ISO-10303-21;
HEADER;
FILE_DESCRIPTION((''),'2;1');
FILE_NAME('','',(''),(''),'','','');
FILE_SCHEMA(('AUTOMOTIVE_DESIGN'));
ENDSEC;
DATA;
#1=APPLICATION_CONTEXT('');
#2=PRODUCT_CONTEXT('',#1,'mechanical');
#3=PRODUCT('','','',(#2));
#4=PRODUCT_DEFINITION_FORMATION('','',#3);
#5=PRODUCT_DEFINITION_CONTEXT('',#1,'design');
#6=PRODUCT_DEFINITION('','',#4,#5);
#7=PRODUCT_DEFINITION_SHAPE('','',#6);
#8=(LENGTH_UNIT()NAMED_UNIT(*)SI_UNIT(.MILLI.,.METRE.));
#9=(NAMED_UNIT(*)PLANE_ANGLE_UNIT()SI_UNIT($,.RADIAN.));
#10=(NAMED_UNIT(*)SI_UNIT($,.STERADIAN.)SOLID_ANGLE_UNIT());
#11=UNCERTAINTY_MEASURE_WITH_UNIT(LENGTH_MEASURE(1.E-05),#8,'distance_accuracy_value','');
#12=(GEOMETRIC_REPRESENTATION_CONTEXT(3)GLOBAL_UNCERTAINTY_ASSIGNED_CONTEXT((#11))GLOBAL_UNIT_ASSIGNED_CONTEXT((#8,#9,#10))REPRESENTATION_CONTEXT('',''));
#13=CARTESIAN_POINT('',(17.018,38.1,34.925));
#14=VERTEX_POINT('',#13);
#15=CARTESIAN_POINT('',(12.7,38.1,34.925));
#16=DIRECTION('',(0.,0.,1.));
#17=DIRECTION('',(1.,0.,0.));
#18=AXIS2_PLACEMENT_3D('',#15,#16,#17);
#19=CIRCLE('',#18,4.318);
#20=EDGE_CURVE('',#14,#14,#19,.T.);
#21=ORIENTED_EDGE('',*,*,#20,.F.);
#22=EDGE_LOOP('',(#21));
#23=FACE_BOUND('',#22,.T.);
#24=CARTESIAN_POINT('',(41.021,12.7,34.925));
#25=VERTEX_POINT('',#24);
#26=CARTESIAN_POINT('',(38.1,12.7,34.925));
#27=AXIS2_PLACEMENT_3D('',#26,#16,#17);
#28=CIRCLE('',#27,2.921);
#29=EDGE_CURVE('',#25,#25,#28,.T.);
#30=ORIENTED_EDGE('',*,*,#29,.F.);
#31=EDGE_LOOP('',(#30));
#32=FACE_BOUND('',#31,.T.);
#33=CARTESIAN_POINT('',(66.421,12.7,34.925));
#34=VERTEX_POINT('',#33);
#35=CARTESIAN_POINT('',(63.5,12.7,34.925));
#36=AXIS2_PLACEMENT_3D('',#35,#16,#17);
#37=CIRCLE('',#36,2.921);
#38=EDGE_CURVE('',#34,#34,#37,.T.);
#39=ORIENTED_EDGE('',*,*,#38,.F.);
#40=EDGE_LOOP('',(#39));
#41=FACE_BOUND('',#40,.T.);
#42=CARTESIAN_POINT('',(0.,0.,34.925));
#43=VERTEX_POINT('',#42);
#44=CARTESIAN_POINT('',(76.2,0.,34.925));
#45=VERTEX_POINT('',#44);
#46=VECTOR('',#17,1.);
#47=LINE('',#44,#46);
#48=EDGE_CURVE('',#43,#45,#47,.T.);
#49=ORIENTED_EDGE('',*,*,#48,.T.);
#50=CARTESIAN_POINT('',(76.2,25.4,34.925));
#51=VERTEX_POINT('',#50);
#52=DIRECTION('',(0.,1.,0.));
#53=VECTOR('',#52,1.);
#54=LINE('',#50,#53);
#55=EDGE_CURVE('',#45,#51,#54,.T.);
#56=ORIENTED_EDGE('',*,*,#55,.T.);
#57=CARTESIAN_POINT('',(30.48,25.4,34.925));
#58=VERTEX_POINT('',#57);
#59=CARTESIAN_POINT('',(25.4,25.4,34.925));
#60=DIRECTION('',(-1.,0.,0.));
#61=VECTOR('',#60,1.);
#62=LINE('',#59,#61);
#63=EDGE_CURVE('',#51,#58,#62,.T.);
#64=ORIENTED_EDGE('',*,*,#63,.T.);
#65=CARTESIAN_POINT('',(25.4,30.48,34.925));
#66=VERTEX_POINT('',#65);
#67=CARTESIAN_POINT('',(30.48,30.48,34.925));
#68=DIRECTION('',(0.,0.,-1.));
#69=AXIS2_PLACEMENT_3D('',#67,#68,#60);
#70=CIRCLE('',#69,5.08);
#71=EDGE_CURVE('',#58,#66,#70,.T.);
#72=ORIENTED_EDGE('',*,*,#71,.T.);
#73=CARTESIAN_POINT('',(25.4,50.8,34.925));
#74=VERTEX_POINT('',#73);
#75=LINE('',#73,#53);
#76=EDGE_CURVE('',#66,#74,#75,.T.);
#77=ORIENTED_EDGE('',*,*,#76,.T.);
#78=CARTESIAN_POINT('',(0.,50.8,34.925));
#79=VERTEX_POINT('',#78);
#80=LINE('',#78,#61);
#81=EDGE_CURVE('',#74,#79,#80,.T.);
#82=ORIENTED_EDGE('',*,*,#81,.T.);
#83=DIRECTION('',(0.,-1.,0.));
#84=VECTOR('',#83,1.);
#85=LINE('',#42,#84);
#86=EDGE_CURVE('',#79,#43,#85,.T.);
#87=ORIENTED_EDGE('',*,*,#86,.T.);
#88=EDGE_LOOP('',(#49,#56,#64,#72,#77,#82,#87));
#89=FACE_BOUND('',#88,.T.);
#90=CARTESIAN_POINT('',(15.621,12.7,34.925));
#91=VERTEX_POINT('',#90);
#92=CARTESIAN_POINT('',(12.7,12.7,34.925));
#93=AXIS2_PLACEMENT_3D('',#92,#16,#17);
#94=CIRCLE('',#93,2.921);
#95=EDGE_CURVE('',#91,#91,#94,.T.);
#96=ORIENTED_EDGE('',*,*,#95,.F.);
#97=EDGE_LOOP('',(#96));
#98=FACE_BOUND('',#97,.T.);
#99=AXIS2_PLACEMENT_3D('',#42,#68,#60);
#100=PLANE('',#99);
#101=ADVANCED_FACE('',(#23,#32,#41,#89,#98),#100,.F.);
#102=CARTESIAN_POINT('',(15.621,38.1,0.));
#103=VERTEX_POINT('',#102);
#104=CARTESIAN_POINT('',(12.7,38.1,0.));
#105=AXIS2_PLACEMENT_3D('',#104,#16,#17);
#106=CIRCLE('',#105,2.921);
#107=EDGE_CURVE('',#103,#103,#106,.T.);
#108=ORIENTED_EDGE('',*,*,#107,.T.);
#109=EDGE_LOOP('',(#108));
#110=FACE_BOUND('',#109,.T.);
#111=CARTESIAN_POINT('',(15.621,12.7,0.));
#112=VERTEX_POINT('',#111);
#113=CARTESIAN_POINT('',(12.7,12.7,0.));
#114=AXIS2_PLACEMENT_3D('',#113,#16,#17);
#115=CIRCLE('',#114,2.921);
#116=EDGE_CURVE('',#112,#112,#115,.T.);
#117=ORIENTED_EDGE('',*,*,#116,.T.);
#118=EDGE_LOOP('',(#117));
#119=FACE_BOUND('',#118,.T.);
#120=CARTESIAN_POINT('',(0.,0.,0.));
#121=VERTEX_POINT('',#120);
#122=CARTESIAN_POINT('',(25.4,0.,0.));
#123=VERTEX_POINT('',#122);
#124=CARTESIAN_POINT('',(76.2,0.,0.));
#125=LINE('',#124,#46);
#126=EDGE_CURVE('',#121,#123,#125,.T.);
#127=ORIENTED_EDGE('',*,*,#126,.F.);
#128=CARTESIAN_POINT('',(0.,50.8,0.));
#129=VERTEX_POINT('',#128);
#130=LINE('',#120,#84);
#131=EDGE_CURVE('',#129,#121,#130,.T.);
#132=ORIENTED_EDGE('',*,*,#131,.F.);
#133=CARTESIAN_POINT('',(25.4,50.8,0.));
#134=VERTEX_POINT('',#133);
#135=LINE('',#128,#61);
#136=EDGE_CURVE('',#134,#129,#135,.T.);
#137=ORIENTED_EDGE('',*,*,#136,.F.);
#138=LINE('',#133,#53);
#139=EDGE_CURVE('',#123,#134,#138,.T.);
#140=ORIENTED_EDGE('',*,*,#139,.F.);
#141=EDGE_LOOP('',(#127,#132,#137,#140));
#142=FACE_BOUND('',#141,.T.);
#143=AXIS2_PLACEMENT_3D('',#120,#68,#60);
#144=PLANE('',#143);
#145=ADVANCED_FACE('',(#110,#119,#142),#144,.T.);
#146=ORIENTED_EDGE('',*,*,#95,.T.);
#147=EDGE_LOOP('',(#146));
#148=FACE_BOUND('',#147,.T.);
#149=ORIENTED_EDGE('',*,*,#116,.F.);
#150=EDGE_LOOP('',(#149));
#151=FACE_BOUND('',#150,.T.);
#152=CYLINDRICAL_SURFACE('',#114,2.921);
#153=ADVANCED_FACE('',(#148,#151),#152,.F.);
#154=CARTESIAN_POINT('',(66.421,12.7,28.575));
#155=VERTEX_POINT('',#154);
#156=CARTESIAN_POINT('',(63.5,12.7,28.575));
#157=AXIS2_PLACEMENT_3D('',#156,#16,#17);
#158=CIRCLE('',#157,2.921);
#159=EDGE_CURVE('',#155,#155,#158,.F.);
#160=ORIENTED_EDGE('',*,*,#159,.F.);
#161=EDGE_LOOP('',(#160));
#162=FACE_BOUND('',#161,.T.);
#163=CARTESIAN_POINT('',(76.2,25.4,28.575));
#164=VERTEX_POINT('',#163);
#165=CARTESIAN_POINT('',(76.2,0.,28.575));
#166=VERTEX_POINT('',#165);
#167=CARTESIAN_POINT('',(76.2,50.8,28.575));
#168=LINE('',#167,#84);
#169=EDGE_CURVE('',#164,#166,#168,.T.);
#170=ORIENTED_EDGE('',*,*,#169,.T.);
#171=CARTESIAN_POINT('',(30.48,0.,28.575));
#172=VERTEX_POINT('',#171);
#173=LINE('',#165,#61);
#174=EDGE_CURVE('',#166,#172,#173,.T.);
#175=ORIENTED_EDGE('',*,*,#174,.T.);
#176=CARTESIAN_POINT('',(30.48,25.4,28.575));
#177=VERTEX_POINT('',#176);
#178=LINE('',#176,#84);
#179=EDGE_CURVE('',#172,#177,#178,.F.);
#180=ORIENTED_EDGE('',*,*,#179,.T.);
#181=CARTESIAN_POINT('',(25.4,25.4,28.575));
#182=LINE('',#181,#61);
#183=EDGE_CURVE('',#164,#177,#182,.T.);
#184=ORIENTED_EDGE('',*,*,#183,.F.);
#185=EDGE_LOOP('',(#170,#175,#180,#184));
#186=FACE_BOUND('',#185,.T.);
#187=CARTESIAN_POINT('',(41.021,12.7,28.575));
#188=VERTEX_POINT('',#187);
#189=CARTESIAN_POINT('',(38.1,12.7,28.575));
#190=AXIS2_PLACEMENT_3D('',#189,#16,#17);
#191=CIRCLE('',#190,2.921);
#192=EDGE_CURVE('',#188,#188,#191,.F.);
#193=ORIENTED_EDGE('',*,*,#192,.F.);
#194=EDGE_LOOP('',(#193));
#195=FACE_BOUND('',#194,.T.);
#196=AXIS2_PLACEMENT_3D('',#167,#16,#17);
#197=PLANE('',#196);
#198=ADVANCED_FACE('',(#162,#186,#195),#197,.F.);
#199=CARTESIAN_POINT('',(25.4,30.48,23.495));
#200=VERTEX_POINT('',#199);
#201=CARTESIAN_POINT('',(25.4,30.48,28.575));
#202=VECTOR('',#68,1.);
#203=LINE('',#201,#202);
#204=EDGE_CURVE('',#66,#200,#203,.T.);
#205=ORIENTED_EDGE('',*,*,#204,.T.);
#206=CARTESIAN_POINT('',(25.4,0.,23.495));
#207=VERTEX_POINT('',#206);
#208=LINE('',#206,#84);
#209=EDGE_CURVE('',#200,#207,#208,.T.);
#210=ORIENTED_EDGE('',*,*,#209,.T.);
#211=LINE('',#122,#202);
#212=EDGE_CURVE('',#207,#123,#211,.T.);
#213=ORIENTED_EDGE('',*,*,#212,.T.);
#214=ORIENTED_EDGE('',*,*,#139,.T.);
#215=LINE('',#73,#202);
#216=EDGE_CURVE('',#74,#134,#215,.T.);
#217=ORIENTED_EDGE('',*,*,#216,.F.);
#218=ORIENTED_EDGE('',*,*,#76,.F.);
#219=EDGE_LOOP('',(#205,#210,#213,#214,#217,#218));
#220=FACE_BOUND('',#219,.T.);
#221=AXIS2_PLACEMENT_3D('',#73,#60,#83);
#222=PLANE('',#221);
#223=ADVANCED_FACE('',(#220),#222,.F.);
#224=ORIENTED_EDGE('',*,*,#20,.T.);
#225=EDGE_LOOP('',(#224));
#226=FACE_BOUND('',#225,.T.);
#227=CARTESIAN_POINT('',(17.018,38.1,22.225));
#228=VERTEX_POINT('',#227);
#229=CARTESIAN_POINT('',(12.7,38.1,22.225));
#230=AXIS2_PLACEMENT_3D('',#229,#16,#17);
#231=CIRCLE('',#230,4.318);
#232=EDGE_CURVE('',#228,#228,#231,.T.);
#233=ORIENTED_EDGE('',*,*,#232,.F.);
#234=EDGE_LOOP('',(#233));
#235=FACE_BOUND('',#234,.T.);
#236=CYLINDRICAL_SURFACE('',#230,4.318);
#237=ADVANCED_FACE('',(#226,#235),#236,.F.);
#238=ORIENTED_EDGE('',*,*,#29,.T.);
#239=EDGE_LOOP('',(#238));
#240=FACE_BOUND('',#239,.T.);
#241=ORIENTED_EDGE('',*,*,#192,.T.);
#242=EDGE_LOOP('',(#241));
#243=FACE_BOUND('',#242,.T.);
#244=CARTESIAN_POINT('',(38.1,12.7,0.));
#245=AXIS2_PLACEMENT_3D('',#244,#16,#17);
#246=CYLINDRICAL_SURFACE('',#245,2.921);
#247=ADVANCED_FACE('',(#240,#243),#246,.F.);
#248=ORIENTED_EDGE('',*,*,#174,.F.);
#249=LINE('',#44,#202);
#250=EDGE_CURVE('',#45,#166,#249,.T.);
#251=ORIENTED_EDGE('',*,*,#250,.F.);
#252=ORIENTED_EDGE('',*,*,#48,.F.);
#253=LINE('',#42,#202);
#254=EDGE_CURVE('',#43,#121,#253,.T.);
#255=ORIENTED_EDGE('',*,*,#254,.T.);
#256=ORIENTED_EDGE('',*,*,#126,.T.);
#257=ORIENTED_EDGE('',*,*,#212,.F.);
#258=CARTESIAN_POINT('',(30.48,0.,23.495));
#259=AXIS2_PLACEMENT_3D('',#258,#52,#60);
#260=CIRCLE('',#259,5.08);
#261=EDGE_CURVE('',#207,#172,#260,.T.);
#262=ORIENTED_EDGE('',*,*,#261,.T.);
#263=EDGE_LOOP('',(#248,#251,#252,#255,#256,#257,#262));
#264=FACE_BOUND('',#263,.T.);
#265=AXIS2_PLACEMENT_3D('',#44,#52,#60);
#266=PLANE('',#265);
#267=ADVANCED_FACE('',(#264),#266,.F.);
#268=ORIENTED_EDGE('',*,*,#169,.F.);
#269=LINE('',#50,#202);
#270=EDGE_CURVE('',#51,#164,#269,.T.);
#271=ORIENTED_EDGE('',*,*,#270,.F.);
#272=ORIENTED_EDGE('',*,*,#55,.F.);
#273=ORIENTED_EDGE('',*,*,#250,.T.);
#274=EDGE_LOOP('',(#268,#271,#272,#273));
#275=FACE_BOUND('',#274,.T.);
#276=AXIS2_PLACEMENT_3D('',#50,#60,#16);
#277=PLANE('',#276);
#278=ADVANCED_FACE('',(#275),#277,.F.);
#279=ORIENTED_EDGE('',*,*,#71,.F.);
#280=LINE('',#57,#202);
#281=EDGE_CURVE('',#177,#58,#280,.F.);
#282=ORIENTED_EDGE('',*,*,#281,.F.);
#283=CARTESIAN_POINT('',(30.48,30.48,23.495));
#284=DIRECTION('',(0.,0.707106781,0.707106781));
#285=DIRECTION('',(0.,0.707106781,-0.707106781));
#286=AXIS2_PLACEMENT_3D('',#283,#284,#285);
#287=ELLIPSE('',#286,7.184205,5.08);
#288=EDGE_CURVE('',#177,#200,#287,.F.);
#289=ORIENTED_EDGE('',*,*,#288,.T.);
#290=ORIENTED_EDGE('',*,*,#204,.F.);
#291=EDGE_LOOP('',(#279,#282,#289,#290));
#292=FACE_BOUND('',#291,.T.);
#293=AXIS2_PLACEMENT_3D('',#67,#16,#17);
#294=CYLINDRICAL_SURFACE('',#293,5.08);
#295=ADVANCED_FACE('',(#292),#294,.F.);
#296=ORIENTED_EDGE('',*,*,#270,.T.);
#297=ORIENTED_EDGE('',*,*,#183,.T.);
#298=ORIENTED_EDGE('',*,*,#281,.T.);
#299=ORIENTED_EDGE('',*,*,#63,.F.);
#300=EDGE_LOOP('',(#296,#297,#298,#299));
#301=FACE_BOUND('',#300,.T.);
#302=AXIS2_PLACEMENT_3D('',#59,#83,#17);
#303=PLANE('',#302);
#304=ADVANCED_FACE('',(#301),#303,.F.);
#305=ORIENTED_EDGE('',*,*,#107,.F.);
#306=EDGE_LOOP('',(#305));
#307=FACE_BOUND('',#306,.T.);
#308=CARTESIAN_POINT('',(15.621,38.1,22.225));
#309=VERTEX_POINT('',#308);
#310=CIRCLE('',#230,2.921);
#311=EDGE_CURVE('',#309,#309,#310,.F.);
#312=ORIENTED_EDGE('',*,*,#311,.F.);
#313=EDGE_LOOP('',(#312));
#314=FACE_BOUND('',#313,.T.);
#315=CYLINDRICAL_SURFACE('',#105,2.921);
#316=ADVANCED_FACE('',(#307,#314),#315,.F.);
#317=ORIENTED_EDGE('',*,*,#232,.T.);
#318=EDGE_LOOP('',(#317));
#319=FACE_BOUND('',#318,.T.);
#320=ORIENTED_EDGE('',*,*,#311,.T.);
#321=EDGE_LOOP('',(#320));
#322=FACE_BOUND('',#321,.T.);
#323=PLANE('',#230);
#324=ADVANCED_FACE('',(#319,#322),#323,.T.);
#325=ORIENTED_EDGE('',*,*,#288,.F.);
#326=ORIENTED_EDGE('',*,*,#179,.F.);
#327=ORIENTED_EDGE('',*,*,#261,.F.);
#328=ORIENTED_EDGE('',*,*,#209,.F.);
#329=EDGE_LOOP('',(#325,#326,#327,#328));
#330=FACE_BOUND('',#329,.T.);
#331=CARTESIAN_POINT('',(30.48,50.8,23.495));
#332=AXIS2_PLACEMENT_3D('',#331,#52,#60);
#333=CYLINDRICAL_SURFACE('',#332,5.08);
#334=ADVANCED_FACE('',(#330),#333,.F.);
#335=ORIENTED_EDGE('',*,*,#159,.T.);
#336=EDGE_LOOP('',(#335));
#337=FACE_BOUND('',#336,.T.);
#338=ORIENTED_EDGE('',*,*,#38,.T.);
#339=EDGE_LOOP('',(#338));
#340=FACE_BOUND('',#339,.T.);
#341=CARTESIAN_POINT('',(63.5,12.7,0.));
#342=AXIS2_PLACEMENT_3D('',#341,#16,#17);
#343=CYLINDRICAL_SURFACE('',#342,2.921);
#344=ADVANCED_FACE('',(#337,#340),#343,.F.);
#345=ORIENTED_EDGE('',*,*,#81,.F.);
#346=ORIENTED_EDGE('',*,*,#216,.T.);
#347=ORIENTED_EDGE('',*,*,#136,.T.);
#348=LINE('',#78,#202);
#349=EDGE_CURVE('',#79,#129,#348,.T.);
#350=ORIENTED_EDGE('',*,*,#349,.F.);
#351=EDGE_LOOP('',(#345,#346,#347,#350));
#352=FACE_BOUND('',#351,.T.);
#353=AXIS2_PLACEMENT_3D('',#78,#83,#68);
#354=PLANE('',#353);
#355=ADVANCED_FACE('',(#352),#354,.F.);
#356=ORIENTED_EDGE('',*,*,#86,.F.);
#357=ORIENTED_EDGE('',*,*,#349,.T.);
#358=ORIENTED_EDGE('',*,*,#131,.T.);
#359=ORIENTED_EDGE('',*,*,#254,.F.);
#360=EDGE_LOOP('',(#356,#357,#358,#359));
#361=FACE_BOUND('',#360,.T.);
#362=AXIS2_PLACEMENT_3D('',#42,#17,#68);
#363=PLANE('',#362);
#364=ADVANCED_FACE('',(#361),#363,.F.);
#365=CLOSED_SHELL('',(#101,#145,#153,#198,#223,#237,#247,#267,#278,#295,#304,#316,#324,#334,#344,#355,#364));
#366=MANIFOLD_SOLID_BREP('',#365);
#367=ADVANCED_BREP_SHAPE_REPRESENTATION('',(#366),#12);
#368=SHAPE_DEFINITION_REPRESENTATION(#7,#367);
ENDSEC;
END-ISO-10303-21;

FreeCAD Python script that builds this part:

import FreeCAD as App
import Part
import Sketcher

V = App.Vector
Q = App.Units.Quantity


def edges_at(feature, points):
    """Names of the edges that pass closest to the given points."""
    edges = feature.Shape.Edges
    near = lambda p: min(range(len(edges)), key=lambda i: edges[i].distToShape(Part.Vertex(*p))[0])
    return sorted({f"Edge{near(p) + 1}" for p in points})

doc = App.newDocument("Part")
body = doc.addObject("PartDesign::Body", "Body")

# Sketch on XY plane
sketch1 = doc.addObject("Sketcher::SketchObject", "Sketch")
body.addObject(sketch1)
sketch1.AttachmentSupport = (doc.XY_Plane, [""])
sketch1.MapMode = "FlatFace"
sketch1.addGeometry([
    Part.LineSegment(V(0, 51, 0), V(0, 0, 0)),  # 0
    Part.LineSegment(V(0, 0, 0), V(76, 0, 0)),  # 1
    Part.LineSegment(V(76, 0, 0), V(76, 25, 0)),  # 2
    Part.LineSegment(V(76, 25, 0), V(25, 25, 0)),  # 3
    Part.LineSegment(V(25, 25, 0), V(25, 51, 0)),  # 4
    Part.LineSegment(V(25, 51, 0), V(0, 51, 0)),  # 5
], False)
sketch1.addConstraint([
    Sketcher.Constraint("Coincident", 0, 2, 1, 1),
    Sketcher.Constraint("Coincident", 1, 2, 2, 1),
    Sketcher.Constraint("Coincident", 2, 2, 3, 1),
    Sketcher.Constraint("Coincident", 3, 2, 4, 1),
    Sketcher.Constraint("Coincident", 4, 2, 5, 1),
    Sketcher.Constraint("Coincident", 5, 2, 0, 1),
    Sketcher.Constraint("Vertical", 0),
    Sketcher.Constraint("Horizontal", 1),
    Sketcher.Constraint("Vertical", 2),
    Sketcher.Constraint("Horizontal", 3),
    Sketcher.Constraint("Vertical", 4),
    Sketcher.Constraint("Horizontal", 5),
    Sketcher.Constraint("Coincident", 0, 2, -1, 1),
    Sketcher.Constraint("Equal", 3, 0),
    Sketcher.Constraint("Equal", 5, 2),
    Sketcher.Constraint("Equal", 2, 4),
    Sketcher.Constraint("DistanceX", 1, 1, 1, 2, Q("3 in")),
])
pad1 = doc.addObject("PartDesign::Pad", "Pad")
body.addObject(pad1)
pad1.Profile = sketch1
pad1.Length = Q("1.375 in")

# Sketch on XY plane
sketch2 = doc.addObject("Sketcher::SketchObject", "Sketch001")
body.addObject(sketch2)
sketch2.AttachmentSupport = (doc.XY_Plane, [""])
sketch2.MapMode = "FlatFace"
sketch2.AttachmentOffset = App.Placement(V(0, 0, 1.375 * 25.4), App.Rotation())
sketch2.addGeometry([
    Part.Circle(V(12.7, 38.1, 0), V(0, 0, 1), 2.9),
    Part.Circle(V(12.7, 12.7, 0), V(0, 0, 1), 2.9),
    Part.Circle(V(38.1, 12.7, 0), V(0, 0, 1), 2.9),
    Part.Circle(V(63.5, 12.7, 0), V(0, 0, 1), 2.9),
], False)
sketch2.addConstraint([
    Sketcher.Constraint("Equal", 0, 1),
    Sketcher.Constraint("Equal", 1, 2),
    Sketcher.Constraint("Equal", 2, 3),
    Sketcher.Constraint("Horizontal", 1, 3, 2, 3),
    Sketcher.Constraint("Horizontal", 2, 3, 3, 3),
    Sketcher.Constraint("Vertical", 0, 3, 1, 3),
    Sketcher.Constraint("Diameter", 0, Q("0.23 in")),
    Sketcher.Constraint("DistanceY", 1, 3, 0, 3, Q("1 in")),
    Sketcher.Constraint("DistanceX", 1, 3, 2, 3, Q("1 in")),
    Sketcher.Constraint("DistanceX", 2, 3, 3, 3, Q("1 in")),
    Sketcher.Constraint("DistanceX", -1, 1, 0, 3, Q("0.5 in")),
    Sketcher.Constraint("DistanceY", -1, 1, 0, 3, Q("1.5 in")),
])
pocket1 = doc.addObject("PartDesign::Pocket", "Pocket")
body.addObject(pocket1)
pocket1.Profile = sketch2
pocket1.Type = "ThroughAll"

# Sketch on XZ plane
sketch3 = doc.addObject("Sketcher::SketchObject", "Sketch002")
body.addObject(sketch3)
sketch3.AttachmentSupport = (doc.XZ_Plane, [""])
sketch3.MapMode = "FlatFace"
sketch3.addGeometry([
    Part.LineSegment(V(25, 29, 0), V(25, 0, 0)),
    Part.LineSegment(V(25, 0, 0), V(76, 0, 0)),
    Part.LineSegment(V(76, 0, 0), V(76, 29, 0)),
    Part.LineSegment(V(76, 29, 0), V(25, 29, 0)),
], False)
sketch3.addConstraint([
    Sketcher.Constraint("Coincident", 0, 2, 1, 1),
    Sketcher.Constraint("Coincident", 1, 2, 2, 1),
    Sketcher.Constraint("Coincident", 2, 2, 3, 1),
    Sketcher.Constraint("Coincident", 3, 2, 0, 1),
    Sketcher.Constraint("Vertical", 0),
    Sketcher.Constraint("Horizontal", 1),
    Sketcher.Constraint("Vertical", 2),
    Sketcher.Constraint("Horizontal", 3),
    Sketcher.Constraint("PointOnObject", 0, 2, -1),
    Sketcher.Constraint("DistanceX", 1, 1, 1, 2, Q("2 in")),
    Sketcher.Constraint("DistanceX", -1, 1, 0, 2, Q("1 in")),
    Sketcher.Constraint("DistanceY", 0, 2, 0, 1, Q("1.125 in")),
])
pocket2 = doc.addObject("PartDesign::Pocket", "Pocket001")
body.addObject(pocket2)
pocket2.Profile = sketch3
pocket2.Type = "ThroughAll"
doc.recompute()

fillet = doc.addObject("PartDesign::Fillet", "Fillet")
body.addObject(fillet)
fillet.Base = (pocket2, edges_at(pocket2, [(25.4, 25.4, 31.75), (25.4, 12.7, 28.575)]))
fillet.Radius = Q("0.2 in")

# Sketch on XY plane
sketch4 = doc.addObject("Sketcher::SketchObject", "Sketch003")
body.addObject(sketch4)
sketch4.AttachmentSupport = (doc.XY_Plane, [""])
sketch4.MapMode = "FlatFace"
sketch4.AttachmentOffset = App.Placement(V(0, 0, 1.375 * 25.4), App.Rotation())
sketch4.addGeometry(Part.Circle(V(12.7, 38.1, 0), V(0, 0, 1), 4.3), False)
sketch4.addConstraint([
    Sketcher.Constraint("Diameter", 0, Q("0.34 in")),
    Sketcher.Constraint("DistanceX", -1, 1, 0, 3, Q("0.5 in")),
    Sketcher.Constraint("DistanceY", -1, 1, 0, 3, Q("1.5 in")),
])
pocket3 = doc.addObject("PartDesign::Pocket", "Pocket002")
body.addObject(pocket3)
pocket3.Profile = sketch4
pocket3.Length = Q("0.5 in")

doc.recompute()
